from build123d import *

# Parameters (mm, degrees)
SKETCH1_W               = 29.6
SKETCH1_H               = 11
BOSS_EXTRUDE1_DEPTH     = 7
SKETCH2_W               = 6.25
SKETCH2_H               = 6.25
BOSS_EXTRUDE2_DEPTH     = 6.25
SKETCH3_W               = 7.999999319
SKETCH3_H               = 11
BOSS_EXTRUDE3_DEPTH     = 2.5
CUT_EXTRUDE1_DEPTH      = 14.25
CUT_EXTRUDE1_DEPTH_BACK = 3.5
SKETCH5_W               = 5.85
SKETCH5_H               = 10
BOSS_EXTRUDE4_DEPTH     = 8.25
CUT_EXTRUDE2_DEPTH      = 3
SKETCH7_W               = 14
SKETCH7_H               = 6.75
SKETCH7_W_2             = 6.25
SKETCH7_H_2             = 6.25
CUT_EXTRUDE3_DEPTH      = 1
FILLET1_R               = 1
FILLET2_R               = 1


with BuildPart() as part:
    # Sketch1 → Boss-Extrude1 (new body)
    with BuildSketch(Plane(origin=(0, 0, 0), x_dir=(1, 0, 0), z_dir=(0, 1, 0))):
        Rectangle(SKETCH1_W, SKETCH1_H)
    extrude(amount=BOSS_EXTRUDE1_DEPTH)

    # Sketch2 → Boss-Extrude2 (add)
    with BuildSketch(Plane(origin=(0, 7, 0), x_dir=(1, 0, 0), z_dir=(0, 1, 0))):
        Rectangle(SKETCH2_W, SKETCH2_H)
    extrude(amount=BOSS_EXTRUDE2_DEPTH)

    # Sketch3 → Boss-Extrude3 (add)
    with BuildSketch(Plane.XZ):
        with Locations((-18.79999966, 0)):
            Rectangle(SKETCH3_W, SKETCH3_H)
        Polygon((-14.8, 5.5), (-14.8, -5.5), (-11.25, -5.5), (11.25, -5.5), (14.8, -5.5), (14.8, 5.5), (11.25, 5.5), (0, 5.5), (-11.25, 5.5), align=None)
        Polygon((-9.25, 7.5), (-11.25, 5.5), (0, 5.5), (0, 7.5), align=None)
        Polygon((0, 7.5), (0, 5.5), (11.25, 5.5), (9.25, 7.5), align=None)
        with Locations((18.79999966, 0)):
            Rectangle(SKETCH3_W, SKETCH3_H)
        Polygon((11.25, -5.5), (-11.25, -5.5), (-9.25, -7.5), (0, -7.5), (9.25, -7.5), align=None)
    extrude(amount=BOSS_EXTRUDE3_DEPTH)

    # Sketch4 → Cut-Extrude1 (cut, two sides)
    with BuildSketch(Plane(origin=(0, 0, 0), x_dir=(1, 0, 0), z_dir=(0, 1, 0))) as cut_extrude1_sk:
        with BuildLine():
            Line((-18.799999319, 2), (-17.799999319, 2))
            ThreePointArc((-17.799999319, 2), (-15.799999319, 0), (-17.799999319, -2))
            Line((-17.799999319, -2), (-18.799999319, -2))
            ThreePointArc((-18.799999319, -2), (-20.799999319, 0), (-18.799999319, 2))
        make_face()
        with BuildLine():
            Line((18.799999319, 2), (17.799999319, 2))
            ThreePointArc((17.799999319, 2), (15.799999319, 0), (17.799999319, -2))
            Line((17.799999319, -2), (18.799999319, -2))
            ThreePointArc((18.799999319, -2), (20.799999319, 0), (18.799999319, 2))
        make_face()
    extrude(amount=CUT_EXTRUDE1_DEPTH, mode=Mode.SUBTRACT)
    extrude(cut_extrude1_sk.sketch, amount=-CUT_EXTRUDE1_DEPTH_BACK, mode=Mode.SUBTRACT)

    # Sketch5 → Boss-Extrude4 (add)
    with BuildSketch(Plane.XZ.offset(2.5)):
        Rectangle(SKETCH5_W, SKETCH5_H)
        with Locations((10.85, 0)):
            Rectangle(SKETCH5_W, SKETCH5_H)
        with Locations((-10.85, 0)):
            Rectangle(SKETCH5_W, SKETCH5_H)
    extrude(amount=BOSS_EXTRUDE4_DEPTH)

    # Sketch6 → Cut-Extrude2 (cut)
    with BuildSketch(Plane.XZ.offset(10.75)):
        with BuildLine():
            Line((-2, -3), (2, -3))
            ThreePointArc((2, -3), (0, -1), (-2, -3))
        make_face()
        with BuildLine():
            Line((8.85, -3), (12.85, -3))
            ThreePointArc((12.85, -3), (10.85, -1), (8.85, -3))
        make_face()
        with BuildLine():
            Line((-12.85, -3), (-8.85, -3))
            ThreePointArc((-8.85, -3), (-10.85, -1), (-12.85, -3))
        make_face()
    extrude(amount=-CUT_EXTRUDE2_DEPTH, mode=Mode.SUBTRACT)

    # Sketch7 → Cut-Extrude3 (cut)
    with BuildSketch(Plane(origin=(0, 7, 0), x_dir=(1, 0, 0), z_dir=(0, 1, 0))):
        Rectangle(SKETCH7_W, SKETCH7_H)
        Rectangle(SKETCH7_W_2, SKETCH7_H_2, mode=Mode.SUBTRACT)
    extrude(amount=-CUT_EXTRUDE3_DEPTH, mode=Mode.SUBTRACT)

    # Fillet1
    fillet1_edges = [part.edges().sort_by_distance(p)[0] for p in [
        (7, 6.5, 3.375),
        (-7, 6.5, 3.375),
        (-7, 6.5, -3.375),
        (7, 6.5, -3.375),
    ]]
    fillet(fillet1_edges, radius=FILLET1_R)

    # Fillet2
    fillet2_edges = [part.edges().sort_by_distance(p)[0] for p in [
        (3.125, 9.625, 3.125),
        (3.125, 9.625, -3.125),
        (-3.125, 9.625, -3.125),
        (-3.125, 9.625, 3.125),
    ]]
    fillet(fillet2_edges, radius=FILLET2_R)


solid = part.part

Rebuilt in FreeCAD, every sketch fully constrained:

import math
import FreeCAD as App
import Part
import Sketcher


def edges_at(feature, points):
    """Names of the edges that pass closest to the given points."""
    edges = feature.Shape.Edges
    near = lambda p: min(range(len(edges)), key=lambda i: edges[i].distToShape(Part.Vertex(*p))[0])
    return sorted({f"Edge{near(p) + 1}" for p in points})

doc = App.newDocument("Part")
body = doc.addObject("PartDesign::Body", "Body")

# Sketch on XZ plane
sketch1 = body.newObject("Sketcher::SketchObject", "Sketch")
sketch1.AttachmentSupport = (doc.getObject("XZ_Plane"), [""])
sketch1.MapMode = "FlatFace"
sketch1.addGeometry([
    Part.LineSegment(App.Vector(-14.8, -5.5, 0), App.Vector(-14.8, 5.5, 0)),
    Part.LineSegment(App.Vector(-14.8, 5.5, 0), App.Vector(14.8, 5.5, 0)),
    Part.LineSegment(App.Vector(14.8, 5.5, 0), App.Vector(14.8, -5.5, 0)),
    Part.LineSegment(App.Vector(14.8, -5.5, 0), App.Vector(-14.8, -5.5, 0)),
], False)
sketch1.addConstraint([
    Sketcher.Constraint("Coincident", 0, 2, 1, 1),
    Sketcher.Constraint("Coincident", 1, 2, 2, 1),
    Sketcher.Constraint("Coincident", 2, 2, 3, 1),
    Sketcher.Constraint("Coincident", 3, 2, 0, 1),
    Sketcher.Constraint("Vertical", 0),
    Sketcher.Constraint("Horizontal", 1),
    Sketcher.Constraint("Vertical", 2),
    Sketcher.Constraint("Horizontal", 3),
    Sketcher.Constraint("Symmetric", 0, 2, 2, 2, -1, 1),
    Sketcher.Constraint("DistanceY", 0, 1, 0, 2, 11.0),
    Sketcher.Constraint("DistanceX", 1, 1, 1, 2, 29.6),
])
pad1 = body.newObject("PartDesign::Pad", "Pad")
pad1.Profile = sketch1
pad1.Length = 7
pad1.Reversed = True

# Sketch on XZ plane
sketch2 = body.newObject("Sketcher::SketchObject", "Sketch001")
sketch2.AttachmentSupport = (doc.getObject("XZ_Plane"), [""])
sketch2.MapMode = "FlatFace"
sketch2.AttachmentOffset = App.Placement(App.Vector(0, 0, -7), App.Rotation())
sketch2.addGeometry([
    Part.LineSegment(App.Vector(-3.125, -3.125, 0), App.Vector(-3.125, 3.125, 0)),
    Part.LineSegment(App.Vector(-3.125, 3.125, 0), App.Vector(3.125, 3.125, 0)),
    Part.LineSegment(App.Vector(3.125, 3.125, 0), App.Vector(3.125, -3.125, 0)),
    Part.LineSegment(App.Vector(3.125, -3.125, 0), App.Vector(-3.125, -3.125, 0)),
], False)
sketch2.addConstraint([
    Sketcher.Constraint("Coincident", 0, 2, 1, 1),
    Sketcher.Constraint("Coincident", 1, 2, 2, 1),
    Sketcher.Constraint("Coincident", 2, 2, 3, 1),
    Sketcher.Constraint("Coincident", 3, 2, 0, 1),
    Sketcher.Constraint("Vertical", 0),
    Sketcher.Constraint("Horizontal", 1),
    Sketcher.Constraint("Vertical", 2),
    Sketcher.Constraint("Horizontal", 3),
    Sketcher.Constraint("Symmetric", 0, 2, 2, 2, -1, 1),
    Sketcher.Constraint("Equal", 3, 0),
    Sketcher.Constraint("DistanceX", 1, 1, 1, 2, 6.25),
])
pad2 = body.newObject("PartDesign::Pad", "Pad001")
pad2.Profile = sketch2
pad2.Length = 6.25
pad2.Reversed = True

# Sketch on XZ plane
sketch3 = body.newObject("Sketcher::SketchObject", "Sketch002")
sketch3.AttachmentSupport = (doc.getObject("XZ_Plane"), [""])
sketch3.MapMode = "FlatFace"
sketch3.addGeometry([
    Part.LineSegment(App.Vector(-22.799999, 5.5, 0), App.Vector(-22.799999, -5.5, 0)),  # 0
    Part.LineSegment(App.Vector(-22.799999, -5.5, 0), App.Vector(-11.25, -5.5, 0)),  # 1
    Part.LineSegment(App.Vector(-11.25, -5.5, 0), App.Vector(-9.25, -7.5, 0)),  # 2
    Part.LineSegment(App.Vector(-9.25, -7.5, 0), App.Vector(9.25, -7.5, 0)),  # 3
    Part.LineSegment(App.Vector(9.25, -7.5, 0), App.Vector(11.25, -5.5, 0)),  # 4
    Part.LineSegment(App.Vector(11.25, -5.5, 0), App.Vector(22.799999, -5.5, 0)),  # 5
    Part.LineSegment(App.Vector(22.799999, -5.5, 0), App.Vector(22.799999, 5.5, 0)),  # 6
    Part.LineSegment(App.Vector(22.799999, 5.5, 0), App.Vector(11.25, 5.5, 0)),  # 7
    Part.LineSegment(App.Vector(11.25, 5.5, 0), App.Vector(9.25, 7.5, 0)),  # 8
    Part.LineSegment(App.Vector(9.25, 7.5, 0), App.Vector(-9.25, 7.5, 0)),  # 9
    Part.LineSegment(App.Vector(-9.25, 7.5, 0), App.Vector(-11.25, 5.5, 0)),  # 10
    Part.LineSegment(App.Vector(-11.25, 5.5, 0), App.Vector(-22.799999, 5.5, 0)),  # 11
], False)
sketch3.addConstraint([
    Sketcher.Constraint("Coincident", 0, 2, 1, 1),
    Sketcher.Constraint("Coincident", 1, 2, 2, 1),
    Sketcher.Constraint("Coincident", 2, 2, 3, 1),
    Sketcher.Constraint("Coincident", 3, 2, 4, 1),
    Sketcher.Constraint("Coincident", 4, 2, 5, 1),
    Sketcher.Constraint("Coincident", 5, 2, 6, 1),
    Sketcher.Constraint("Coincident", 6, 2, 7, 1),
    Sketcher.Constraint("Coincident", 7, 2, 8, 1),
    Sketcher.Constraint("Coincident", 8, 2, 9, 1),
    Sketcher.Constraint("Coincident", 9, 2, 10, 1),
    Sketcher.Constraint("Coincident", 10, 2, 11, 1),
    Sketcher.Constraint("Coincident", 11, 2, 0, 1),
    Sketcher.Constraint("Vertical", 0),
    Sketcher.Constraint("Horizontal", 1),
    Sketcher.Constraint("Horizontal", 3),
    Sketcher.Constraint("Horizontal", 5),
    Sketcher.Constraint("Vertical", 6),
    Sketcher.Constraint("Horizontal", 7),
    Sketcher.Constraint("Horizontal", 9),
    Sketcher.Constraint("Horizontal", 11),
    Sketcher.Constraint("Symmetric", 0, 2, 6, 2, -1, 1),
    Sketcher.Constraint("Symmetric", 2, 2, 8, 2, -1, 1),
    Sketcher.Constraint("Symmetric", 4, 2, 10, 2, -1, 1),
    Sketcher.Constraint("Symmetric", 1, 2, 4, 2, -2),
    Sketcher.Constraint("Perpendicular", 2, 4),
    Sketcher.Constraint("Perpendicular", 4, 8),
    Sketcher.Constraint("Perpendicular", 8, 10),
    Sketcher.Constraint("Vertical", 3, 2, 8, 2),
    Sketcher.Constraint("DistanceY", 0, 2, 0, 1, 11.0),
    Sketcher.Constraint("DistanceX", 3, 1, 3, 2, 18.5),
    Sketcher.Constraint("DistanceX", 1, 2, 2, 2, 2.0),
    Sketcher.Constraint("DistanceX", 1, 1, 1, 2, 11.549999),
])
pad3 = body.newObject("PartDesign::Pad", "Pad002")
pad3.Profile = sketch3
pad3.Length = 2.5

# Sketch on XZ plane
sketch4 = body.newObject("Sketcher::SketchObject", "Sketch003")
sketch4.AttachmentSupport = (doc.getObject("XZ_Plane"), [""])
sketch4.MapMode = "FlatFace"
sketch4.addGeometry([
    Part.LineSegment(App.Vector(-17.799999, -2, 0), App.Vector(-18.799999, -2, 0)),  # 0
    Part.ArcOfCircle(Part.Circle(App.Vector(-18.799999, 0, 0), App.Vector(0, 0, 1), 2), math.radians(90), math.radians(270)),  # 1
    Part.LineSegment(App.Vector(-18.799999, 2, 0), App.Vector(-17.799999, 2, 0)),  # 2
    Part.ArcOfCircle(Part.Circle(App.Vector(-17.799999, 0, 0), App.Vector(0, 0, 1), 2), math.radians(-90), math.radians(90)),  # 3
    Part.LineSegment(App.Vector(18.799999, -2, 0), App.Vector(17.799999, -2, 0)),  # 4
    Part.ArcOfCircle(Part.Circle(App.Vector(17.799999, 0, 0), App.Vector(0, 0, 1), 2), math.radians(90), math.radians(270)),  # 5
    Part.LineSegment(App.Vector(17.799999, 2, 0), App.Vector(18.799999, 2, 0)),  # 6
    Part.ArcOfCircle(Part.Circle(App.Vector(18.799999, 0, 0), App.Vector(0, 0, 1), 2), math.radians(-90), math.radians(90)),  # 7
], False)
sketch4.addConstraint([
    Sketcher.Constraint("Tangent", 0, 2, 1, 2),
    Sketcher.Constraint("Tangent", 1, 1, 2, 1),
    Sketcher.Constraint("Tangent", 2, 2, 3, 2),
    Sketcher.Constraint("Tangent", 3, 1, 0, 1),
    Sketcher.Constraint("Tangent", 4, 2, 5, 2),
    Sketcher.Constraint("Tangent", 5, 1, 6, 1),
    Sketcher.Constraint("Tangent", 6, 2, 7, 2),
    Sketcher.Constraint("Tangent", 7, 1, 4, 1),
    Sketcher.Constraint("Horizontal", 0),
    Sketcher.Constraint("Horizontal", 2),
    Sketcher.Constraint("Horizontal", 4),
    Sketcher.Constraint("Horizontal", 6),
    Sketcher.Constraint("Equal", 3, 5),
    Sketcher.Constraint("Symmetric", 3, 3, 5, 3, -1, 1),
    Sketcher.Constraint("Symmetric", 1, 3, 7, 3, -2),
    Sketcher.Constraint("Radius", 1, 2.0),
    Sketcher.Constraint("DistanceX", 0, 2, 0, 1, 1.0),
    Sketcher.Constraint("DistanceX", 1, 3, -1, 1, 18.799999),
])
pocket1 = body.newObject("PartDesign::Pocket", "Pocket")
pocket1.Profile = sketch4
pocket1.Type = "ThroughAll"
pocket1.Midplane = True

# Sketch on XZ plane
sketch5 = body.newObject("Sketcher::SketchObject", "Sketch004")
sketch5.AttachmentSupport = (doc.getObject("XZ_Plane"), [""])
sketch5.MapMode = "FlatFace"
sketch5.AttachmentOffset = App.Placement(App.Vector(0, 0, 2.5), App.Rotation())
sketch5.addGeometry([
    Part.LineSegment(App.Vector(-2.925, 5, 0), App.Vector(-2.925, -5, 0)),  # 0
    Part.LineSegment(App.Vector(-2.925, -5, 0), App.Vector(2.925, -5, 0)),  # 1
    Part.LineSegment(App.Vector(2.925, -5, 0), App.Vector(2.925, 5, 0)),  # 2
    Part.LineSegment(App.Vector(2.925, 5, 0), App.Vector(-2.925, 5, 0)),  # 3
    Part.LineSegment(App.Vector(7.925, 5, 0), App.Vector(7.925, -5, 0)),  # 4
    Part.LineSegment(App.Vector(7.925, -5, 0), App.Vector(13.775, -5, 0)),  # 5
    Part.LineSegment(App.Vector(13.775, -5, 0), App.Vector(13.775, 5, 0)),  # 6
    Part.LineSegment(App.Vector(13.775, 5, 0), App.Vector(7.925, 5, 0)),  # 7
    Part.LineSegment(App.Vector(-13.775, 5, 0), App.Vector(-13.775, -5, 0)),  # 8
    Part.LineSegment(App.Vector(-13.775, -5, 0), App.Vector(-7.925, -5, 0)),  # 9
    Part.LineSegment(App.Vector(-7.925, -5, 0), App.Vector(-7.925, 5, 0)),  # 10
    Part.LineSegment(App.Vector(-7.925, 5, 0), App.Vector(-13.775, 5, 0)),  # 11
], False)
sketch5.addConstraint([
    Sketcher.Constraint("Coincident", 0, 2, 1, 1),
    Sketcher.Constraint("Coincident", 1, 2, 2, 1),
    Sketcher.Constraint("Coincident", 2, 2, 3, 1),
    Sketcher.Constraint("Coincident", 3, 2, 0, 1),
    Sketcher.Constraint("Coincident", 4, 2, 5, 1),
    Sketcher.Constraint("Coincident", 5, 2, 6, 1),
    Sketcher.Constraint("Coincident", 6, 2, 7, 1),
    Sketcher.Constraint("Coincident", 7, 2, 4, 1),
    Sketcher.Constraint("Coincident", 8, 2, 9, 1),
    Sketcher.Constraint("Coincident", 9, 2, 10, 1),
    Sketcher.Constraint("Coincident", 10, 2, 11, 1),
    Sketcher.Constraint("Coincident", 11, 2, 8, 1),
    Sketcher.Constraint("Vertical", 0),
    Sketcher.Constraint("Horizontal", 1),
    Sketcher.Constraint("Vertical", 2),
    Sketcher.Constraint("Horizontal", 3),
    Sketcher.Constraint("Vertical", 4),
    Sketcher.Constraint("Horizontal", 5),
    Sketcher.Constraint("Vertical", 6),
    Sketcher.Constraint("Horizontal", 7),
    Sketcher.Constraint("Vertical", 8),
    Sketcher.Constraint("Horizontal", 9),
    Sketcher.Constraint("Vertical", 10),
    Sketcher.Constraint("Horizontal", 11),
    Sketcher.Constraint("Symmetric", 0, 2, 2, 2, -1, 1),
    Sketcher.Constraint("Symmetric", 6, 2, 8, 2, -1, 1),
    Sketcher.Constraint("Symmetric", 4, 2, 10, 2, -1, 1),
    Sketcher.Constraint("Horizontal", 1, 2, 4, 2),
    Sketcher.Constraint("Horizontal", 3, 2, 6, 2),
    Sketcher.Constraint("Equal", 3, 5),
    Sketcher.Constraint("DistanceY", 0, 2, 0, 1, 10.0),
    Sketcher.Constraint("DistanceX", 1, 2, 4, 2, 5.0),
    Sketcher.Constraint("DistanceX", 1, 1, 1, 2, 5.85),
])
pad4 = body.newObject("PartDesign::Pad", "Pad003")
pad4.Profile = sketch5
pad4.Length = 8.25

# Sketch on XZ plane
sketch6 = body.newObject("Sketcher::SketchObject", "Sketch005")
sketch6.AttachmentSupport = (doc.getObject("XZ_Plane"), [""])
sketch6.MapMode = "FlatFace"
sketch6.AttachmentOffset = App.Placement(App.Vector(0, 0, 10.75), App.Rotation())
sketch6.addGeometry([
    Part.LineSegment(App.Vector(-2, -3, 0), App.Vector(2, -3, 0)),  # 0
    Part.ArcOfCircle(Part.Circle(App.Vector(0, -3, 0), App.Vector(0, 0, 1), 2), math.radians(0), math.radians(180)),  # 1
    Part.LineSegment(App.Vector(8.85, -3, 0), App.Vector(12.85, -3, 0)),  # 2
    Part.ArcOfCircle(Part.Circle(App.Vector(10.85, -3, 0), App.Vector(0, 0, 1), 2), math.radians(0), math.radians(180)),  # 3
    Part.LineSegment(App.Vector(-12.85, -3, 0), App.Vector(-8.85, -3, 0)),  # 4
    Part.ArcOfCircle(Part.Circle(App.Vector(-10.85, -3, 0), App.Vector(0, 0, 1), 2), math.radians(0), math.radians(180)),  # 5
], False)
sketch6.addConstraint([
    Sketcher.Constraint("Coincident", 0, 1, 1, 2),
    Sketcher.Constraint("Coincident", 1, 1, 0, 2),
    Sketcher.Constraint("Coincident", 2, 1, 3, 2),
    Sketcher.Constraint("Coincident", 3, 1, 2, 2),
    Sketcher.Constraint("Coincident", 4, 1, 5, 2),
    Sketcher.Constraint("Coincident", 5, 1, 4, 2),
    Sketcher.Constraint("Horizontal", 0),
    Sketcher.Constraint("Horizontal", 2),
    Sketcher.Constraint("Horizontal", 4),
    Sketcher.Constraint("Equal", 1, 3),
    Sketcher.Constraint("Equal", 3, 5),
    Sketcher.Constraint("Symmetric", 3, 3, 5, 3, -2),
    Sketcher.Constraint("PointOnObject", 1, 3, -2),
    Sketcher.Constraint("Horizontal", 1, 3, 3, 3),
    Sketcher.Constraint("Horizontal", 5, 3, 0, 1),
    Sketcher.Constraint("Horizontal", 1, 1, 2, 1),
    Sketcher.Constraint("Horizontal", 3, 1, 4, 1),
    Sketcher.Constraint("Radius", 1, 2.0),
    Sketcher.Constraint("DistanceY", 1, 3, -1, 1, 3.0),
    Sketcher.Constraint("DistanceX", 5, 3, 3, 3, 21.7),
])
pocket2 = body.newObject("PartDesign::Pocket", "Pocket001")
pocket2.Profile = sketch6
pocket2.Length = 3

# Sketch on XZ plane
sketch7 = body.newObject("Sketcher::SketchObject", "Sketch006")
sketch7.AttachmentSupport = (doc.getObject("XZ_Plane"), [""])
sketch7.MapMode = "FlatFace"
sketch7.AttachmentOffset = App.Placement(App.Vector(0, 0, -7), App.Rotation())
sketch7.addGeometry([
    Part.LineSegment(App.Vector(-7, -3.375, 0), App.Vector(-7, 3.375, 0)),  # 0
    Part.LineSegment(App.Vector(-7, 3.375, 0), App.Vector(7, 3.375, 0)),  # 1
    Part.LineSegment(App.Vector(7, 3.375, 0), App.Vector(7, -3.375, 0)),  # 2
    Part.LineSegment(App.Vector(7, -3.375, 0), App.Vector(-7, -3.375, 0)),  # 3
    Part.LineSegment(App.Vector(3.125, 3.125, 0), App.Vector(-3.125, 3.125, 0)),  # 4
    Part.LineSegment(App.Vector(-3.125, 3.125, 0), App.Vector(-3.125, -3.125, 0)),  # 5
    Part.LineSegment(App.Vector(-3.125, -3.125, 0), App.Vector(3.125, -3.125, 0)),  # 6
    Part.LineSegment(App.Vector(3.125, -3.125, 0), App.Vector(3.125, 3.125, 0)),  # 7
], False)
sketch7.addConstraint([
    Sketcher.Constraint("Coincident", 0, 2, 1, 1),
    Sketcher.Constraint("Coincident", 1, 2, 2, 1),
    Sketcher.Constraint("Coincident", 2, 2, 3, 1),
    Sketcher.Constraint("Coincident", 3, 2, 0, 1),
    Sketcher.Constraint("Coincident", 4, 2, 5, 1),
    Sketcher.Constraint("Coincident", 5, 2, 6, 1),
    Sketcher.Constraint("Coincident", 6, 2, 7, 1),
    Sketcher.Constraint("Coincident", 7, 2, 4, 1),
    Sketcher.Constraint("Vertical", 0),
    Sketcher.Constraint("Horizontal", 1),
    Sketcher.Constraint("Vertical", 2),
    Sketcher.Constraint("Horizontal", 3),
    Sketcher.Constraint("Horizontal", 4),
    Sketcher.Constraint("Vertical", 5),
    Sketcher.Constraint("Horizontal", 6),
    Sketcher.Constraint("Vertical", 7),
    Sketcher.Constraint("Symmetric", 0, 2, 2, 2, -1, 1),
    Sketcher.Constraint("Symmetric", 4, 2, 6, 2, -1, 1),
    Sketcher.Constraint("Equal", 6, 5),
    Sketcher.Constraint("DistanceX", 1, 1, 1, 2, 14.0),
    Sketcher.Constraint("DistanceX", 4, 2, 4, 1, 6.25),
    Sketcher.Constraint("DistanceY", 0, 1, 0, 2, 6.75),
])
pocket3 = body.newObject("PartDesign::Pocket", "Pocket002")
pocket3.Profile = sketch7
pocket3.Length = 1
pocket3.Reversed = True
doc.recompute()

fillet = body.newObject("PartDesign::Fillet", "Fillet")
fillet.Base = (pocket3, edges_at(pocket3, [
    (7, 6.5, 3.375),
    (-7, 6.5, 3.375),
    (-7, 6.5, -3.375),
    (7, 6.5, -3.375),
]))
fillet.Radius = 1
doc.recompute()

fillet2 = body.newObject("PartDesign::Fillet", "Fillet001")
fillet2.Base = (fillet, edges_at(fillet, [
    (3.125, 9.625, 3.125),
    (3.125, 9.625, -3.125),
    (-3.125, 9.625, -3.125),
    (-3.125, 9.625, 3.125),
]))
fillet2.Radius = 1

doc.recompute()
